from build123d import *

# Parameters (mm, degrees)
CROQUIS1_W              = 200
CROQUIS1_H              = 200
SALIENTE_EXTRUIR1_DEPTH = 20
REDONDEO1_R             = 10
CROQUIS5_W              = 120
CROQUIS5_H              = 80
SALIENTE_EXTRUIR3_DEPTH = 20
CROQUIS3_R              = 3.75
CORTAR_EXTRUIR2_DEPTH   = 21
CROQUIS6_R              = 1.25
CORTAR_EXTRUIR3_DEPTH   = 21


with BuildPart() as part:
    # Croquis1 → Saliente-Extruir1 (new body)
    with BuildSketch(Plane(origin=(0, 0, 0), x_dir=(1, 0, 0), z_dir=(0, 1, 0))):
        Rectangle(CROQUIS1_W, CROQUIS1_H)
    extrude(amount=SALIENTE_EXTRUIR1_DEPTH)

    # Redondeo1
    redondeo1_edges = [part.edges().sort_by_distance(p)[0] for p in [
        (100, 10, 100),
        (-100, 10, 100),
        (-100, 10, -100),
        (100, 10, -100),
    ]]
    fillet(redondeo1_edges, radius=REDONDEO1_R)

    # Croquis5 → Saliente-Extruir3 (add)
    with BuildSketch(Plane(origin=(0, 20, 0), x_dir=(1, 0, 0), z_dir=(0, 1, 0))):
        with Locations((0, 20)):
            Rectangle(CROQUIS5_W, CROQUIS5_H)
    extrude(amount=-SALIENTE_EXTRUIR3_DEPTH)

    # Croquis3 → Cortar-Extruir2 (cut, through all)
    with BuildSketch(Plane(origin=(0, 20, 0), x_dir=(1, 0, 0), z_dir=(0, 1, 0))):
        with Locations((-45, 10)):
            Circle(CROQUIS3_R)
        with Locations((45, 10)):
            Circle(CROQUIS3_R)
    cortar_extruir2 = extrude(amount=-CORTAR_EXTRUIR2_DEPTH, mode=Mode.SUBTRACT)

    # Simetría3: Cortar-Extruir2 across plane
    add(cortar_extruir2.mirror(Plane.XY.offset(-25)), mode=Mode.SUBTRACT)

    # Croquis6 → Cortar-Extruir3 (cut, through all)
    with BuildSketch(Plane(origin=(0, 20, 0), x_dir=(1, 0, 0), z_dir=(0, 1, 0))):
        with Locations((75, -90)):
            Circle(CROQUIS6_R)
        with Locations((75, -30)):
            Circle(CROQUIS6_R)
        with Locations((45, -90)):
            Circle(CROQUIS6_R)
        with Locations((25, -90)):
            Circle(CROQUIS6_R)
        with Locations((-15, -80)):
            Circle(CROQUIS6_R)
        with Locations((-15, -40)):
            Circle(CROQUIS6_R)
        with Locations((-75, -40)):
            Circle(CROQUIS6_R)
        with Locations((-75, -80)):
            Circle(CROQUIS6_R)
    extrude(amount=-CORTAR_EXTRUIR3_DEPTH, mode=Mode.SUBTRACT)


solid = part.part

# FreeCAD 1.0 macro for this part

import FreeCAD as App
import Part
import Sketcher

V = App.Vector


def edges_at(feature, points):
    """Names of the edges that pass closest to the given points."""
    edges = feature.Shape.Edges
    near = lambda p: min(range(len(edges)), key=lambda i: edges[i].distToShape(Part.Vertex(*p))[0])
    return sorted({f"Edge{near(p) + 1}" for p in points})

doc = App.newDocument("Part")
params = doc.addObject("Spreadsheet::Sheet", "Params")
for row, (alias, value) in enumerate([
    ("sketch1_width", "200 mm"),
    ("pad1_length", "20 mm"),
    ("fillet_radius", "10 mm"),
    ("sketch2_width", "120 mm"),
    ("sketch2_height", "80 mm"),
    ("pad2_length", "20 mm"),
    ("sketch3_diameter", "7.5 mm"),
    ("sketch4_diameter", "2.5 mm"),
], start=1):
    params.set(f"A{row}", alias)
    params.set(f"B{row}", "=" + value)
    params.setAlias(f"B{row}", alias)

body = doc.addObject("PartDesign::Body", "Body")

# Sketch on XZ plane
sketch1 = body.newObject("Sketcher::SketchObject", "Sketch")
sketch1.AttachmentSupport = (doc.getObject("XZ_Plane"), [""])
sketch1.MapMode = "FlatFace"
sketch1.addGeometry(Part.LineSegment(V(-100, -100, 0), V(-100, 100, 0)), False)
sketch1.addGeometry(Part.LineSegment(V(-100, 100, 0), V(100, 100, 0)), False)
sketch1.addGeometry(Part.LineSegment(V(100, 100, 0), V(100, -100, 0)), False)
sketch1.addGeometry(Part.LineSegment(V(100, -100, 0), V(-100, -100, 0)), False)
sketch1.addConstraint(Sketcher.Constraint("Coincident", 0, 2, 1, 1))
sketch1.addConstraint(Sketcher.Constraint("Coincident", 1, 2, 2, 1))
sketch1.addConstraint(Sketcher.Constraint("Coincident", 2, 2, 3, 1))
sketch1.addConstraint(Sketcher.Constraint("Coincident", 3, 2, 0, 1))
sketch1.addConstraint(Sketcher.Constraint("Vertical", 0))
sketch1.addConstraint(Sketcher.Constraint("Horizontal", 1))
sketch1.addConstraint(Sketcher.Constraint("Vertical", 2))
sketch1.addConstraint(Sketcher.Constraint("Horizontal", 3))
sketch1.addConstraint(Sketcher.Constraint("Symmetric", 0, 2, 2, 2, -1, 1))
sketch1.addConstraint(Sketcher.Constraint("Equal", 3, 0))
sketch1.addConstraint(Sketcher.Constraint("DistanceX", 1, 1, 1, 2, 200.0))
sketch1.setExpression("Constraints[10]", "Params.sketch1_width")
pad1 = body.newObject("PartDesign::Pad", "Pad")
pad1.Profile = sketch1
pad1.setExpression("Length", "Params.pad1_length")
pad1.Reversed = True
doc.recompute()

fillet = body.newObject("PartDesign::Fillet", "Fillet")
fillet.Base = (pad1, edges_at(pad1, [
    (100, 10, 100),
    (-100, 10, 100),
    (-100, 10, -100),
    (100, 10, -100),
]))
fillet.setExpression("Radius", "Params.fillet_radius")

# Sketch on XZ plane
sketch2 = body.newObject("Sketcher::SketchObject", "Sketch001")
sketch2.AttachmentSupport = (doc.getObject("XZ_Plane"), [""])
sketch2.MapMode = "FlatFace"
sketch2.AttachmentOffset = App.Placement(V(0, 0, -20), App.Rotation())
sketch2.addGeometry(Part.LineSegment(V(-60, -60, 0), V(-60, 20, 0)), False)
sketch2.addGeometry(Part.LineSegment(V(-60, 20, 0), V(60, 20, 0)), False)
sketch2.addGeometry(Part.LineSegment(V(60, 20, 0), V(60, -60, 0)), False)
sketch2.addGeometry(Part.LineSegment(V(60, -60, 0), V(-60, -60, 0)), False)
sketch2.addConstraint(Sketcher.Constraint("Coincident", 0, 2, 1, 1))
sketch2.addConstraint(Sketcher.Constraint("Coincident", 1, 2, 2, 1))
sketch2.addConstraint(Sketcher.Constraint("Coincident", 2, 2, 3, 1))
sketch2.addConstraint(Sketcher.Constraint("Coincident", 3, 2, 0, 1))
sketch2.addConstraint(Sketcher.Constraint("Vertical", 0))
sketch2.addConstraint(Sketcher.Constraint("Horizontal", 1))
sketch2.addConstraint(Sketcher.Constraint("Vertical", 2))
sketch2.addConstraint(Sketcher.Constraint("Horizontal", 3))
sketch2.addConstraint(Sketcher.Constraint("DistanceX", 1, 1, 1, 2, 120.0))
sketch2.addConstraint(Sketcher.Constraint("DistanceY", 0, 1, 0, 2, 80.0))
sketch2.addConstraint(Sketcher.Constraint("DistanceX", 0, 2, -1, 1, 60.0))
sketch2.addConstraint(Sketcher.Constraint("DistanceY", -1, 1, 0, 2, 20.0))
sketch2.setExpression("Constraints[8]", "Params.sketch2_width")
sketch2.setExpression("Constraints[9]", "Params.sketch2_height")
pad2 = body.newObject("PartDesign::Pad", "Pad001")
pad2.Profile = sketch2
pad2.setExpression("Length", "Params.pad2_length")

# Sketch on XZ plane
sketch3 = body.newObject("Sketcher::SketchObject", "Sketch002")
sketch3.AttachmentSupport = (doc.getObject("XZ_Plane"), [""])
sketch3.MapMode = "FlatFace"
sketch3.AttachmentOffset = App.Placement(V(0, 0, -20), App.Rotation())
sketch3.addGeometry(Part.Circle(V(-45, -10, 0), V(0, 0, 1), 3.8), False)
sketch3.addGeometry(Part.Circle(V(45, -10, 0), V(0, 0, 1), 3.8), False)
sketch3.addConstraint(Sketcher.Constraint("Equal", 0, 1))
sketch3.addConstraint(Sketcher.Constraint("Symmetric", 0, 3, 1, 3, -2))
sketch3.addConstraint(Sketcher.Constraint("Diameter", 0, 7.5))
sketch3.addConstraint(Sketcher.Constraint("DistanceX", 0, 3, -1, 1, 45.0))
sketch3.addConstraint(Sketcher.Constraint("DistanceY", 0, 3, -1, 1, 10.0))
sketch3.setExpression("Constraints[2]", "Params.sketch3_diameter")
pocket1 = body.newObject("PartDesign::Pocket", "Pocket")
pocket1.Profile = sketch3
pocket1.Type = "ThroughAll"
pocket1.Reversed = True
doc.recompute()

datumplane = body.newObject("PartDesign::Plane", "DatumPlane")
datumplane.AttachmentSupport = (doc.getObject("XY_Plane"), [""])
datumplane.MapMode = "FlatFace"
datumplane.AttachmentOffset = App.Placement(V(0, 0, -25), App.Rotation())
mirrored = body.newObject("PartDesign::Mirrored", "Mirrored")
mirrored.Originals = [pocket1]
mirrored.MirrorPlane = (datumplane, [""])
body.Tip = mirrored

# Sketch on XZ plane
sketch4 = body.newObject("Sketcher::SketchObject", "Sketch003")
sketch4.AttachmentSupport = (doc.getObject("XZ_Plane"), [""])
sketch4.MapMode = "FlatFace"
sketch4.AttachmentOffset = App.Placement(V(0, 0, -20), App.Rotation())
sketch4.addGeometry(Part.Circle(V(75, 90, 0), V(0, 0, 1), 1.2), False)
sketch4.addGeometry(Part.Circle(V(75, 30, 0), V(0, 0, 1), 1.2), False)
sketch4.addGeometry(Part.Circle(V(45, 90, 0), V(0, 0, 1), 1.2), False)
sketch4.addGeometry(Part.Circle(V(25, 90, 0), V(0, 0, 1), 1.2), False)
sketch4.addGeometry(Part.Circle(V(-15, 80, 0), V(0, 0, 1), 1.2), False)
sketch4.addGeometry(Part.Circle(V(-15, 40, 0), V(0, 0, 1), 1.2), False)
sketch4.addGeometry(Part.Circle(V(-75, 40, 0), V(0, 0, 1), 1.2), False)
sketch4.addGeometry(Part.Circle(V(-75, 80, 0), V(0, 0, 1), 1.2), False)
sketch4.addConstraint(Sketcher.Constraint("Equal", 0, 1))
sketch4.addConstraint(Sketcher.Constraint("Equal", 1, 2))
sketch4.addConstraint(Sketcher.Constraint("Equal", 2, 3))
sketch4.addConstraint(Sketcher.Constraint("Equal", 3, 4))
sketch4.addConstraint(Sketcher.Constraint("Equal", 4, 5))
sketch4.addConstraint(Sketcher.Constraint("Equal", 5, 6))
sketch4.addConstraint(Sketcher.Constraint("Equal", 6, 7))
sketch4.addConstraint(Sketcher.Constraint("Horizontal", 0, 3, 2, 3))
sketch4.addConstraint(Sketcher.Constraint("Horizontal", 2, 3, 3, 3))
sketch4.addConstraint(Sketcher.Constraint("Horizontal", 5, 3, 6, 3))
sketch4.addConstraint(Sketcher.Constraint("Horizontal", 4, 3, 7, 3))
sketch4.addConstraint(Sketcher.Constraint("Vertical", 0, 3, 1, 3))
sketch4.addConstraint(Sketcher.Constraint("Vertical", 4, 3, 5, 3))
sketch4.addConstraint(Sketcher.Constraint("Vertical", 6, 3, 7, 3))
sketch4.addConstraint(Sketcher.Constraint("Diameter", 0, 2.5))
sketch4.addConstraint(Sketcher.Constraint("DistanceX", -1, 1, 0, 3, 75.0))
sketch4.addConstraint(Sketcher.Constraint("DistanceY", -1, 1, 0, 3, 90.0))
sketch4.addConstraint(Sketcher.Constraint("DistanceY", -1, 1, 1, 3, 30.0))
sketch4.addConstraint(Sketcher.Constraint("DistanceX", -1, 1, 2, 3, 45.0))
sketch4.addConstraint(Sketcher.Constraint("DistanceX", -1, 1, 3, 3, 25.0))
sketch4.addConstraint(Sketcher.Constraint("DistanceX", 4, 3, -1, 1, 15.0))
sketch4.addConstraint(Sketcher.Constraint("DistanceY", -1, 1, 4, 3, 80.0))
sketch4.addConstraint(Sketcher.Constraint("DistanceY", -1, 1, 5, 3, 40.0))
sketch4.addConstraint(Sketcher.Constraint("DistanceX", 6, 3, -1, 1, 75.0))
sketch4.setExpression("Constraints[14]", "Params.sketch4_diameter")
pocket2 = body.newObject("PartDesign::Pocket", "Pocket001")
pocket2.Profile = sketch4
pocket2.Type = "ThroughAll"
pocket2.Reversed = True

doc.recompute()
